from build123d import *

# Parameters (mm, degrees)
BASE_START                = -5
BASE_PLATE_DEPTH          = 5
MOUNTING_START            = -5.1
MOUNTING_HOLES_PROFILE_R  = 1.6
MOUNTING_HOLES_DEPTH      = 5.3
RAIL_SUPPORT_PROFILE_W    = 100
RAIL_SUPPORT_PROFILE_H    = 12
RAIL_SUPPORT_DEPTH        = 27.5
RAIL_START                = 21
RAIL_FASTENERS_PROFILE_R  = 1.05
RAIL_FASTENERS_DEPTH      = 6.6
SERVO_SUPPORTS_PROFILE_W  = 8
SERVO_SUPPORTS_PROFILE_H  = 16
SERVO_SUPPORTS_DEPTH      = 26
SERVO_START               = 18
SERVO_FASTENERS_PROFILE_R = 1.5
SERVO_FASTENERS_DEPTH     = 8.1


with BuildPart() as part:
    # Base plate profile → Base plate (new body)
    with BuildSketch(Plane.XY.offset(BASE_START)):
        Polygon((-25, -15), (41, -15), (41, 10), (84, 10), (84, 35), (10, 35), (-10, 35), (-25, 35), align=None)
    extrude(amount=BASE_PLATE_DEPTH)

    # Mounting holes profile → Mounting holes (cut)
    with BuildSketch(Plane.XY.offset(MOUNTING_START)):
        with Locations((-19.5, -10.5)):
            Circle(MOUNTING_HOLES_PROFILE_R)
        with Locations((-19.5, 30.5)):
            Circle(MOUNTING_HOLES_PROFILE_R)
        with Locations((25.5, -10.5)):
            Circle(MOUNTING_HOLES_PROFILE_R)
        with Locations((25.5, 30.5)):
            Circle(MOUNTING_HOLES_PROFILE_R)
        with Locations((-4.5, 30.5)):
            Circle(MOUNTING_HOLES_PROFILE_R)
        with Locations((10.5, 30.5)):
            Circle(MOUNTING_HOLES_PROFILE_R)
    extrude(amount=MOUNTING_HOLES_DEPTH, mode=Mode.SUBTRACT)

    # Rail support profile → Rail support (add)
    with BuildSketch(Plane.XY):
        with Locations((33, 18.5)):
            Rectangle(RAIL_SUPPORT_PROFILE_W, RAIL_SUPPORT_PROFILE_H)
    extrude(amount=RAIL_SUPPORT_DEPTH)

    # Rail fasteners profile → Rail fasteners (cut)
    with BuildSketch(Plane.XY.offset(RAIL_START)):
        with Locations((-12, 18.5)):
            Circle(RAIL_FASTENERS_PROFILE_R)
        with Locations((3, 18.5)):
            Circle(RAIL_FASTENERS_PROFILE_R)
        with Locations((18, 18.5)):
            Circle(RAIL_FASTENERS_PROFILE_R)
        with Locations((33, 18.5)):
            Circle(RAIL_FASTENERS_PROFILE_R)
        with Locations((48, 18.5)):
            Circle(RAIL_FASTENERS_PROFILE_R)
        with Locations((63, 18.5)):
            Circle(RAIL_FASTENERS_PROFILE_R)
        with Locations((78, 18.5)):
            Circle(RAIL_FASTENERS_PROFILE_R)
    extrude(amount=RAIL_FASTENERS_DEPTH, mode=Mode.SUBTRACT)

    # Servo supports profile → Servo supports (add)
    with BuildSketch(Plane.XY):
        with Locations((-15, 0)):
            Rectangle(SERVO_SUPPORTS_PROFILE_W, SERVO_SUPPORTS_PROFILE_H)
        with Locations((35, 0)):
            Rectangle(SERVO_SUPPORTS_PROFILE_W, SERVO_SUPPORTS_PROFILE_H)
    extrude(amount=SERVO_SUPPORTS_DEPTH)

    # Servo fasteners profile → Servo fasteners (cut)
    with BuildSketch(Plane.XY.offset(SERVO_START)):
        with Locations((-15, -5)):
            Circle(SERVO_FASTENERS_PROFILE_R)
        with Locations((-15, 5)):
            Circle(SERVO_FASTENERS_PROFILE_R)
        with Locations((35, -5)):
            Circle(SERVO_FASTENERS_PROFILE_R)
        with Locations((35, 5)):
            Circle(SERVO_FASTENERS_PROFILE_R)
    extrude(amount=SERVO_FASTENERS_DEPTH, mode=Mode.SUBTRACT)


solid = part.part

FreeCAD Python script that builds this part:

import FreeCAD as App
import Part
import Sketcher
from FreeCAD import Vector

doc = App.newDocument("Part")
body = doc.addObject("PartDesign::Body", "Body")

# Sketch on XY plane
sketch1 = body.newObject("Sketcher::SketchObject", "Sketch")
sketch1.AttachmentSupport = (doc.getObject("XY_Plane"), [""])
sketch1.MapMode = "FlatFace"
sketch1.AttachmentOffset = App.Placement(Vector(0, 0, -5), App.Rotation())
sketch1.addGeometry([
    Part.LineSegment(Vector(-25, -15, 0), Vector(41, -15, 0)),  # 0
    Part.LineSegment(Vector(41, -15, 0), Vector(41, 10, 0)),  # 1
    Part.LineSegment(Vector(41, 10, 0), Vector(84, 10, 0)),  # 2
    Part.LineSegment(Vector(84, 10, 0), Vector(84, 35, 0)),  # 3
    Part.LineSegment(Vector(84, 35, 0), Vector(-25, 35, 0)),  # 4
    Part.LineSegment(Vector(-25, 35, 0), Vector(-25, -15, 0)),  # 5
], False)
sketch1.addConstraint([
    Sketcher.Constraint("Coincident", 0, 2, 1, 1),
    Sketcher.Constraint("Coincident", 1, 2, 2, 1),
    Sketcher.Constraint("Coincident", 2, 2, 3, 1),
    Sketcher.Constraint("Coincident", 3, 2, 4, 1),
    Sketcher.Constraint("Coincident", 4, 2, 5, 1),
    Sketcher.Constraint("Coincident", 5, 2, 0, 1),
    Sketcher.Constraint("Horizontal", 0),
    Sketcher.Constraint("Vertical", 1),
    Sketcher.Constraint("Horizontal", 2),
    Sketcher.Constraint("Vertical", 3),
    Sketcher.Constraint("Horizontal", 4),
    Sketcher.Constraint("Vertical", 5),
    Sketcher.Constraint("Equal", 1, 3),
    Sketcher.Constraint("DistanceX", 0, 1, 0, 2, 66.0),
    Sketcher.Constraint("DistanceX", 2, 1, 2, 2, 43.0),
    Sketcher.Constraint("DistanceY", 1, 1, 1, 2, 25.0),
    Sketcher.Constraint("DistanceX", -1, 1, 0, 2, 41.0),
    Sketcher.Constraint("DistanceY", 0, 2, -1, 1, 15.0),
])
pad1 = body.newObject("PartDesign::Pad", "Pad")
pad1.Profile = sketch1
pad1.Length = 5

# Sketch on XY plane
sketch2 = body.newObject("Sketcher::SketchObject", "Sketch001")
sketch2.AttachmentSupport = (doc.getObject("XY_Plane"), [""])
sketch2.MapMode = "FlatFace"
sketch2.AttachmentOffset = App.Placement(Vector(0, 0, -5.1), App.Rotation())
sketch2.addGeometry([
    Part.Circle(Vector(-19.5, -10.5, 0), Vector(0, 0, 1), 1.6),  # 0
    Part.Circle(Vector(-19.5, 30.5, 0), Vector(0, 0, 1), 1.6),  # 1
    Part.Circle(Vector(25.5, -10.5, 0), Vector(0, 0, 1), 1.6),  # 2
    Part.Circle(Vector(25.5, 30.5, 0), Vector(0, 0, 1), 1.6),  # 3
    Part.Circle(Vector(-4.5, 30.5, 0), Vector(0, 0, 1), 1.6),  # 4
    Part.Circle(Vector(10.5, 30.5, 0), Vector(0, 0, 1), 1.6),  # 5
], False)
sketch2.addConstraint([
    Sketcher.Constraint("Equal", 0, 1),
    Sketcher.Constraint("Equal", 1, 2),
    Sketcher.Constraint("Equal", 2, 3),
    Sketcher.Constraint("Equal", 3, 4),
    Sketcher.Constraint("Equal", 4, 5),
    Sketcher.Constraint("Horizontal", 0, 3, 2, 3),
    Sketcher.Constraint("Horizontal", 1, 3, 3, 3),
    Sketcher.Constraint("Horizontal", 3, 3, 4, 3),
    Sketcher.Constraint("Horizontal", 4, 3, 5, 3),
    Sketcher.Constraint("Vertical", 0, 3, 1, 3),
    Sketcher.Constraint("Vertical", 2, 3, 3, 3),
    Sketcher.Constraint("Diameter", 0, 3.2),
    Sketcher.Constraint("DistanceY", 0, 3, 1, 3, 41.0),
    Sketcher.Constraint("DistanceX", 0, 3, 2, 3, 45.0),
    Sketcher.Constraint("DistanceX", 1, 3, 4, 3, 15.0),
    Sketcher.Constraint("DistanceX", 5, 3, 3, 3, 15.0),
    Sketcher.Constraint("DistanceX", 0, 3, -1, 1, 19.5),
    Sketcher.Constraint("DistanceY", 0, 3, -1, 1, 10.5),
])
pocket1 = body.newObject("PartDesign::Pocket", "Pocket")
pocket1.Profile = sketch2
pocket1.Length = 5.3
pocket1.Reversed = True

# Sketch on XY plane
sketch3 = body.newObject("Sketcher::SketchObject", "Sketch002")
sketch3.AttachmentSupport = (doc.getObject("XY_Plane"), [""])
sketch3.MapMode = "FlatFace"
sketch3.addGeometry([
    Part.LineSegment(Vector(-17, 24.5, 0), Vector(-17, 12.5, 0)),
    Part.LineSegment(Vector(-17, 12.5, 0), Vector(83, 12.5, 0)),
    Part.LineSegment(Vector(83, 12.5, 0), Vector(83, 24.5, 0)),
    Part.LineSegment(Vector(83, 24.5, 0), Vector(-17, 24.5, 0)),
], False)
sketch3.addConstraint([
    Sketcher.Constraint("Coincident", 0, 2, 1, 1),
    Sketcher.Constraint("Coincident", 1, 2, 2, 1),
    Sketcher.Constraint("Coincident", 2, 2, 3, 1),
    Sketcher.Constraint("Coincident", 3, 2, 0, 1),
    Sketcher.Constraint("Vertical", 0),
    Sketcher.Constraint("Horizontal", 1),
    Sketcher.Constraint("Vertical", 2),
    Sketcher.Constraint("Horizontal", 3),
    Sketcher.Constraint("DistanceX", 1, 1, 1, 2, 100.0),
    Sketcher.Constraint("DistanceY", 0, 2, 0, 1, 12.0),
    Sketcher.Constraint("DistanceX", 0, 2, -1, 1, 17.0),
    Sketcher.Constraint("DistanceY", -1, 1, 0, 2, 12.5),
])
pad2 = body.newObject("PartDesign::Pad", "Pad001")
pad2.Profile = sketch3
pad2.Length = 27.5

# Sketch on XY plane
sketch4 = body.newObject("Sketcher::SketchObject", "Sketch003")
sketch4.AttachmentSupport = (doc.getObject("XY_Plane"), [""])
sketch4.MapMode = "FlatFace"
sketch4.AttachmentOffset = App.Placement(Vector(0, 0, 21), App.Rotation())
sketch4.addGeometry([
    Part.Circle(Vector(-12, 18.5, 0), Vector(0, 0, 1), 1.05),  # 0
    Part.Circle(Vector(3, 18.5, 0), Vector(0, 0, 1), 1.05),  # 1
    Part.Circle(Vector(18, 18.5, 0), Vector(0, 0, 1), 1.05),  # 2
    Part.Circle(Vector(33, 18.5, 0), Vector(0, 0, 1), 1.05),  # 3
    Part.Circle(Vector(48, 18.5, 0), Vector(0, 0, 1), 1.05),  # 4
    Part.Circle(Vector(63, 18.5, 0), Vector(0, 0, 1), 1.05),  # 5
    Part.Circle(Vector(78, 18.5, 0), Vector(0, 0, 1), 1.05),  # 6
], False)
sketch4.addConstraint([
    Sketcher.Constraint("Equal", 0, 1),
    Sketcher.Constraint("Equal", 1, 2),
    Sketcher.Constraint("Equal", 2, 3),
    Sketcher.Constraint("Equal", 3, 4),
    Sketcher.Constraint("Equal", 4, 5),
    Sketcher.Constraint("Equal", 5, 6),
    Sketcher.Constraint("Horizontal", 0, 3, 1, 3),
    Sketcher.Constraint("Horizontal", 1, 3, 2, 3),
    Sketcher.Constraint("Horizontal", 2, 3, 3, 3),
    Sketcher.Constraint("Horizontal", 3, 3, 4, 3),
    Sketcher.Constraint("Horizontal", 4, 3, 5, 3),
    Sketcher.Constraint("Horizontal", 5, 3, 6, 3),
    Sketcher.Constraint("Diameter", 0, 2.1),
    Sketcher.Constraint("DistanceX", 0, 3, -1, 1, 12.0),
    Sketcher.Constraint("DistanceX", -1, 1, 1, 3, 3.0),
    Sketcher.Constraint("DistanceX", -1, 1, 2, 3, 18.0),
    Sketcher.Constraint("DistanceX", -1, 1, 3, 3, 33.0),
    Sketcher.Constraint("DistanceX", -1, 1, 4, 3, 48.0),
    Sketcher.Constraint("DistanceX", -1, 1, 5, 3, 63.0),
    Sketcher.Constraint("DistanceX", -1, 1, 6, 3, 78.0),
    Sketcher.Constraint("DistanceY", -1, 1, 0, 3, 18.5),
])
pocket2 = body.newObject("PartDesign::Pocket", "Pocket001")
pocket2.Profile = sketch4
pocket2.Length = 6.6
pocket2.Reversed = True

# Sketch on XY plane
sketch5 = body.newObject("Sketcher::SketchObject", "Sketch004")
sketch5.AttachmentSupport = (doc.getObject("XY_Plane"), [""])
sketch5.MapMode = "FlatFace"
sketch5.addGeometry([
    Part.LineSegment(Vector(-19, 8, 0), Vector(-19, -8, 0)),  # 0
    Part.LineSegment(Vector(-19, -8, 0), Vector(-11, -8, 0)),  # 1
    Part.LineSegment(Vector(-11, -8, 0), Vector(-11, 8, 0)),  # 2
    Part.LineSegment(Vector(-11, 8, 0), Vector(-19, 8, 0)),  # 3
    Part.LineSegment(Vector(31, 8, 0), Vector(31, -8, 0)),  # 4
    Part.LineSegment(Vector(31, -8, 0), Vector(39, -8, 0)),  # 5
    Part.LineSegment(Vector(39, -8, 0), Vector(39, 8, 0)),  # 6
    Part.LineSegment(Vector(39, 8, 0), Vector(31, 8, 0)),  # 7
], False)
sketch5.addConstraint([
    Sketcher.Constraint("Coincident", 0, 2, 1, 1),
    Sketcher.Constraint("Coincident", 1, 2, 2, 1),
    Sketcher.Constraint("Coincident", 2, 2, 3, 1),
    Sketcher.Constraint("Coincident", 3, 2, 0, 1),
    Sketcher.Constraint("Coincident", 4, 2, 5, 1),
    Sketcher.Constraint("Coincident", 5, 2, 6, 1),
    Sketcher.Constraint("Coincident", 6, 2, 7, 1),
    Sketcher.Constraint("Coincident", 7, 2, 4, 1),
    Sketcher.Constraint("Vertical", 0),
    Sketcher.Constraint("Horizontal", 1),
    Sketcher.Constraint("Vertical", 2),
    Sketcher.Constraint("Horizontal", 3),
    Sketcher.Constraint("Vertical", 4),
    Sketcher.Constraint("Horizontal", 5),
    Sketcher.Constraint("Vertical", 6),
    Sketcher.Constraint("Horizontal", 7),
    Sketcher.Constraint("Horizontal", 1, 2, 4, 2),
    Sketcher.Constraint("Horizontal", 3, 2, 6, 2),
    Sketcher.Constraint("Equal", 3, 5),
    Sketcher.Constraint("DistanceX", 1, 1, 1, 2, 8.0),
    Sketcher.Constraint("DistanceY", 0, 2, 0, 1, 16.0),
    Sketcher.Constraint("DistanceX", 0, 2, -1, 1, 19.0),
    Sketcher.Constraint("DistanceY", 0, 2, -1, 1, 8.0),
    Sketcher.Constraint("DistanceX", -1, 1, 4, 2, 31.0),
])
pad3 = body.newObject("PartDesign::Pad", "Pad002")
pad3.Profile = sketch5
pad3.Length = 26

# Sketch on XY plane
sketch6 = body.newObject("Sketcher::SketchObject", "Sketch005")
sketch6.AttachmentSupport = (doc.getObject("XY_Plane"), [""])
sketch6.MapMode = "FlatFace"
sketch6.AttachmentOffset = App.Placement(Vector(0, 0, 18), App.Rotation())
sketch6.addGeometry([
    Part.Circle(Vector(-15, -5, 0), Vector(0, 0, 1), 1.5),
    Part.Circle(Vector(-15, 5, 0), Vector(0, 0, 1), 1.5),
    Part.Circle(Vector(35, -5, 0), Vector(0, 0, 1), 1.5),
    Part.Circle(Vector(35, 5, 0), Vector(0, 0, 1), 1.5),
], False)
sketch6.addConstraint([
    Sketcher.Constraint("Equal", 0, 1),
    Sketcher.Constraint("Equal", 1, 2),
    Sketcher.Constraint("Equal", 2, 3),
    Sketcher.Constraint("Symmetric", 0, 3, 1, 3, -1),
    Sketcher.Constraint("Symmetric", 2, 3, 3, 3, -1),
    Sketcher.Constraint("Horizontal", 0, 3, 2, 3),
    Sketcher.Constraint("Diameter", 0, 3.0),
    Sketcher.Constraint("DistanceX", 0, 3, -1, 1, 15.0),
    Sketcher.Constraint("DistanceY", 0, 3, -1, 1, 5.0),
    Sketcher.Constraint("DistanceX", -1, 1, 2, 3, 35.0),
])
pocket3 = body.newObject("PartDesign::Pocket", "Pocket002")
pocket3.Profile = sketch6
pocket3.Length = 8.1
pocket3.Reversed = True

doc.recompute()
